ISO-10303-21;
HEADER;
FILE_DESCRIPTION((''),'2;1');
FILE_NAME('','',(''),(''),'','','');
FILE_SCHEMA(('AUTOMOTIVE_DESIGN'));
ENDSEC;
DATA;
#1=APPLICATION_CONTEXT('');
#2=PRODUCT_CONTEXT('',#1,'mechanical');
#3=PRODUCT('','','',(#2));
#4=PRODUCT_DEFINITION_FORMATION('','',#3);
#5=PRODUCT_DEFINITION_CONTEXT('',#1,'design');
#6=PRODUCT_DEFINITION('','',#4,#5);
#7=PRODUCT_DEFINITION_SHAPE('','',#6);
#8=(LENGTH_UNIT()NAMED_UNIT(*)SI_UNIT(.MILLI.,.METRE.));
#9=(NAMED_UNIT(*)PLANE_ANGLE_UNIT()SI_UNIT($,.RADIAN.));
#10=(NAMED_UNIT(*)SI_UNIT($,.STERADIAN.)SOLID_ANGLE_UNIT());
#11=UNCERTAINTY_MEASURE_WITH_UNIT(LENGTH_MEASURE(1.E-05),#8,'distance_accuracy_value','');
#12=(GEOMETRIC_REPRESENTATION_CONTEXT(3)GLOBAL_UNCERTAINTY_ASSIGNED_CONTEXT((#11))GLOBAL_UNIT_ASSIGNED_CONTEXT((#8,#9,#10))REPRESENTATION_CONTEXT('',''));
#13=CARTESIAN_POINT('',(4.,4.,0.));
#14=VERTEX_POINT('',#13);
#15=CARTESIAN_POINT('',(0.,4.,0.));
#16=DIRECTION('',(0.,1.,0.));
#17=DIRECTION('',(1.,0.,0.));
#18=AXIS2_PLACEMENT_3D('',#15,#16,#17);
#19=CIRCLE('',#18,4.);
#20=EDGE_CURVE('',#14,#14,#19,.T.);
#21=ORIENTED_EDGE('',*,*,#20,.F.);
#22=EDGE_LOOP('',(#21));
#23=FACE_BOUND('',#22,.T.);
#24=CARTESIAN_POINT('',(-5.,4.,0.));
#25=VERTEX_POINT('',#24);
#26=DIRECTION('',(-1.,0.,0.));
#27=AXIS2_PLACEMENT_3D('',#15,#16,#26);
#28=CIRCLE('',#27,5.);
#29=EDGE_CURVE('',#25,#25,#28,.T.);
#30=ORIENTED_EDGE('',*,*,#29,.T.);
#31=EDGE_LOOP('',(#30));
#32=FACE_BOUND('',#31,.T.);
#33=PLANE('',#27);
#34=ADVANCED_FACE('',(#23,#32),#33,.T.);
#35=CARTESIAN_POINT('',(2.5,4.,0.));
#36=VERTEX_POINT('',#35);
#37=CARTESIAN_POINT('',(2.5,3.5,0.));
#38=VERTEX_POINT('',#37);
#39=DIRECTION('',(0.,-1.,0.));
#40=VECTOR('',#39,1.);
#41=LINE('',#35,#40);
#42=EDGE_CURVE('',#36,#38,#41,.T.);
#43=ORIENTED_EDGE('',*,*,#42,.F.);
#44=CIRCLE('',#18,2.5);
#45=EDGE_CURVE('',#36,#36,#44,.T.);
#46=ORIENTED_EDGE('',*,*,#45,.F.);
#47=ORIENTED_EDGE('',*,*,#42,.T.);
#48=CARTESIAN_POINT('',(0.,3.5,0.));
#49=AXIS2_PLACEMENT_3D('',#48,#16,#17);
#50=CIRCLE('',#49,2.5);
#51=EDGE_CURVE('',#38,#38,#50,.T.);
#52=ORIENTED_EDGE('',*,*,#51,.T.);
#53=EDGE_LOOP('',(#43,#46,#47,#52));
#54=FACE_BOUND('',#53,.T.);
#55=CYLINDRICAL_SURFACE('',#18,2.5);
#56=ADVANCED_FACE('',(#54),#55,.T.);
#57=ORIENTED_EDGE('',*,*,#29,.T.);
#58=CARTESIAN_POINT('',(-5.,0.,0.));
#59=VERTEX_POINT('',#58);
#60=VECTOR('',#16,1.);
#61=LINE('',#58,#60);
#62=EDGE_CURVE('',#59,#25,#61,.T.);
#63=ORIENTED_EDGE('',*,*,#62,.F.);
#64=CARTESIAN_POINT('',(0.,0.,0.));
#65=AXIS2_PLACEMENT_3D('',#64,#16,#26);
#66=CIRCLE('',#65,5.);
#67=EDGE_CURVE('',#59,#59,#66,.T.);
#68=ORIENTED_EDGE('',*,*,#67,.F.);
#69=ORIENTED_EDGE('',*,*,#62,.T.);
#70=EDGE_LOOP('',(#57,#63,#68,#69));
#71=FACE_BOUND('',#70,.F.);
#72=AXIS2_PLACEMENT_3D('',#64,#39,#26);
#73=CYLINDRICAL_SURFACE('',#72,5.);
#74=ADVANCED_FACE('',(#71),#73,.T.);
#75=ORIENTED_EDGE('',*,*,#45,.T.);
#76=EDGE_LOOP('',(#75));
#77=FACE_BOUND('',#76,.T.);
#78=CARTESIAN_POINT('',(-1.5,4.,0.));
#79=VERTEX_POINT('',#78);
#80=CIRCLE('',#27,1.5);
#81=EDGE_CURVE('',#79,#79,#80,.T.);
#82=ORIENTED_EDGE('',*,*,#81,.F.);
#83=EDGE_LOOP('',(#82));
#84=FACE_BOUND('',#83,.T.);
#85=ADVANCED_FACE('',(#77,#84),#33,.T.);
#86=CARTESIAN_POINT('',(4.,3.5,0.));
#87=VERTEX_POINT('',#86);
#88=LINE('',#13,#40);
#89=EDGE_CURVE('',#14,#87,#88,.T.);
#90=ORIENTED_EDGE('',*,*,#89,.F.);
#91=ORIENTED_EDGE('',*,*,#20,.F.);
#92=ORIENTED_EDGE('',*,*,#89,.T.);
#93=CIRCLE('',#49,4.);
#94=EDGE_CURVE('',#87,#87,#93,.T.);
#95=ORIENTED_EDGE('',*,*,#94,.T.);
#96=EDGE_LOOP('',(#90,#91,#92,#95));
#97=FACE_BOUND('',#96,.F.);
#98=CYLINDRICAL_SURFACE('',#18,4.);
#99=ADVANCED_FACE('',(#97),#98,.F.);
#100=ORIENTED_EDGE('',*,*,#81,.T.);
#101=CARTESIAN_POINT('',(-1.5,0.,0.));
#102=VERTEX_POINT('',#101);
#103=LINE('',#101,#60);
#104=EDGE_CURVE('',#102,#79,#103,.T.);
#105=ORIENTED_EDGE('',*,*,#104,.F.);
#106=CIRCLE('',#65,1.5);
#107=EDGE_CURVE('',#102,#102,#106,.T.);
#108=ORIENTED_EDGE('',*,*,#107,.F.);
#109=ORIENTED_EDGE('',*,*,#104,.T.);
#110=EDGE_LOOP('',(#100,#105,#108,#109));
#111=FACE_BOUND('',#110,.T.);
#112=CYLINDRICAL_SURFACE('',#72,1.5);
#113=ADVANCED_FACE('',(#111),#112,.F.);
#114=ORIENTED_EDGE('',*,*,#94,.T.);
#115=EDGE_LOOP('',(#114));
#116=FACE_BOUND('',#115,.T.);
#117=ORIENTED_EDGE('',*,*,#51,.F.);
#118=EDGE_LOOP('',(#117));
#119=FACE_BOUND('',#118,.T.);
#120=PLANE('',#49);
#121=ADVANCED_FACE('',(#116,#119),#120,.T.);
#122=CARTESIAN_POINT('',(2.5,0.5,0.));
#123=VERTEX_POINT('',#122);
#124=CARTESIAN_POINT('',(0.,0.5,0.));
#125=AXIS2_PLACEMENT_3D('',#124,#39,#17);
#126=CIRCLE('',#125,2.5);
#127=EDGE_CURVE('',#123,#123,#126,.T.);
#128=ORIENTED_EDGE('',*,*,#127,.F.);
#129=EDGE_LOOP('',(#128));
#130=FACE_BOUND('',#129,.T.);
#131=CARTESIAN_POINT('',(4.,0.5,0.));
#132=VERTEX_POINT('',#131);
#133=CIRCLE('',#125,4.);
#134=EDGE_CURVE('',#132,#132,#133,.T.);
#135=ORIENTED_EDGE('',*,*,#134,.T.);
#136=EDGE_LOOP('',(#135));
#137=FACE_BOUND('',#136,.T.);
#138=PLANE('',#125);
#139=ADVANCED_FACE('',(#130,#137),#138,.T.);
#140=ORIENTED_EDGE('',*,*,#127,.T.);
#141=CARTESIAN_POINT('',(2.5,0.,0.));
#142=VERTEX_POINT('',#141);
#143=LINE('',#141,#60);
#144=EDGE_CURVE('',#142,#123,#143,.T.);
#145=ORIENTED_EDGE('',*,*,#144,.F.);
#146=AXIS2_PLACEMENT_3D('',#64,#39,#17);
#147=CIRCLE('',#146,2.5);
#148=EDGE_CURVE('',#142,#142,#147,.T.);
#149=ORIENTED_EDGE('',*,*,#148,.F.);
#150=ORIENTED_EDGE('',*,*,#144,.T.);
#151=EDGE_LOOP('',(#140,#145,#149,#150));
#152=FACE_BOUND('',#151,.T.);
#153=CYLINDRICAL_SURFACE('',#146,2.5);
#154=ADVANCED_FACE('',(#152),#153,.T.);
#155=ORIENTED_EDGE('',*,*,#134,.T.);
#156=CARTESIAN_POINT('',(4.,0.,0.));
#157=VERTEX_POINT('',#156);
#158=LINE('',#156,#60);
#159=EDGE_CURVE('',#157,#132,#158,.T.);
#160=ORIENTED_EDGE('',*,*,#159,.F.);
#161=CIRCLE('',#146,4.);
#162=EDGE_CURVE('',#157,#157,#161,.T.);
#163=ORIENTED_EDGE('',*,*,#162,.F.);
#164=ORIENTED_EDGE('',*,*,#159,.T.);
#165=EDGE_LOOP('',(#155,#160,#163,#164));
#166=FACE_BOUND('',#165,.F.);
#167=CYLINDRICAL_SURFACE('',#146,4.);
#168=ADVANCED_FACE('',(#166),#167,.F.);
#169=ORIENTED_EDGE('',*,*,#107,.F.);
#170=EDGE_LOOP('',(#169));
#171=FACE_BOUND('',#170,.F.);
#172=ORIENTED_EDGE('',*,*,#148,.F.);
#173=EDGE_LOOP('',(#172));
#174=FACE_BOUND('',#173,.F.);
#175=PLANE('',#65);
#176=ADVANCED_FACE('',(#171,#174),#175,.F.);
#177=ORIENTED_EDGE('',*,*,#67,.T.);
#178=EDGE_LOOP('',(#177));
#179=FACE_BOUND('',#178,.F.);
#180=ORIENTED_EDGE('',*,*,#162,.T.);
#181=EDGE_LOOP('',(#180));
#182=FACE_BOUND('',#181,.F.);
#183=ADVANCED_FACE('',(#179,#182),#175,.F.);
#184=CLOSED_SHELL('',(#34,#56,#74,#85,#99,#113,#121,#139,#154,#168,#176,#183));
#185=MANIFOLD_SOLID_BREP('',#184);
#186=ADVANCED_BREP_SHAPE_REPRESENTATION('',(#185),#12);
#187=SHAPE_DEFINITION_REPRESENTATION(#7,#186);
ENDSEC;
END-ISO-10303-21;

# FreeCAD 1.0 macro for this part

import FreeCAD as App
import Part
import Sketcher
from FreeCAD import Vector

doc = App.newDocument("Part")
body = doc.addObject("PartDesign::Body", "Body")

# Sketch on XZ plane
sketch1 = doc.addObject("Sketcher::SketchObject", "Sketch")
body.addObject(sketch1)
sketch1.AttachmentSupport = (doc.XZ_Plane, [""])
sketch1.MapMode = "FlatFace"
sketch1.addGeometry([
    Part.Circle(Vector(0, 0, 0), Vector(0, 0, 1), 5),
    Part.Circle(Vector(0, 0, 0), Vector(0, 0, 1), 1.5),
], False)
sketch1.addConstraint([
    Sketcher.Constraint("Coincident", 0, 3, -1, 1),
    Sketcher.Constraint("Coincident", 1, 3, -1, 1),
    Sketcher.Constraint("Diameter", 0, 10.0),
    Sketcher.Constraint("Diameter", 1, 3.0),
])
pad1 = doc.addObject("PartDesign::Pad", "Pad")
body.addObject(pad1)
pad1.Profile = sketch1
pad1.Length = 4
pad1.Reversed = True

# Sketch on XZ plane
sketch2 = doc.addObject("Sketcher::SketchObject", "Sketch001")
body.addObject(sketch2)
sketch2.AttachmentSupport = (doc.XZ_Plane, [""])
sketch2.MapMode = "FlatFace"
sketch2.AttachmentOffset = App.Placement(Vector(0, 0, -4), App.Rotation())
sketch2.addGeometry([
    Part.Circle(Vector(0, 0, 0), Vector(0, 0, 1), 4),
    Part.Circle(Vector(0, 0, 0), Vector(0, 0, 1), 2.5),
], False)
sketch2.addConstraint([
    Sketcher.Constraint("Coincident", 0, 3, -1, 1),
    Sketcher.Constraint("Coincident", 1, 3, -1, 1),
    Sketcher.Constraint("Diameter", 0, 8.0),
    Sketcher.Constraint("Diameter", 1, 5.0),
])
pocket1 = doc.addObject("PartDesign::Pocket", "Pocket")
body.addObject(pocket1)
pocket1.Profile = sketch2
pocket1.Length = 0.5
pocket1.Reversed = True

# Sketch on XZ plane
sketch3 = doc.addObject("Sketcher::SketchObject", "Sketch002")
body.addObject(sketch3)
sketch3.AttachmentSupport = (doc.XZ_Plane, [""])
sketch3.MapMode = "FlatFace"
sketch3.addGeometry([
    Part.Circle(Vector(0, 0, 0), Vector(0, 0, 1), 4),
    Part.Circle(Vector(0, 0, 0), Vector(0, 0, 1), 2.5),
], False)
sketch3.addConstraint([
    Sketcher.Constraint("Coincident", 0, 3, -1, 1),
    Sketcher.Constraint("Coincident", 1, 3, -1, 1),
    Sketcher.Constraint("Diameter", 0, 8.0),
    Sketcher.Constraint("Diameter", 1, 5.0),
])
pocket2 = doc.addObject("PartDesign::Pocket", "Pocket001")
body.addObject(pocket2)
pocket2.Profile = sketch3
pocket2.Length = 0.5

doc.recompute()
